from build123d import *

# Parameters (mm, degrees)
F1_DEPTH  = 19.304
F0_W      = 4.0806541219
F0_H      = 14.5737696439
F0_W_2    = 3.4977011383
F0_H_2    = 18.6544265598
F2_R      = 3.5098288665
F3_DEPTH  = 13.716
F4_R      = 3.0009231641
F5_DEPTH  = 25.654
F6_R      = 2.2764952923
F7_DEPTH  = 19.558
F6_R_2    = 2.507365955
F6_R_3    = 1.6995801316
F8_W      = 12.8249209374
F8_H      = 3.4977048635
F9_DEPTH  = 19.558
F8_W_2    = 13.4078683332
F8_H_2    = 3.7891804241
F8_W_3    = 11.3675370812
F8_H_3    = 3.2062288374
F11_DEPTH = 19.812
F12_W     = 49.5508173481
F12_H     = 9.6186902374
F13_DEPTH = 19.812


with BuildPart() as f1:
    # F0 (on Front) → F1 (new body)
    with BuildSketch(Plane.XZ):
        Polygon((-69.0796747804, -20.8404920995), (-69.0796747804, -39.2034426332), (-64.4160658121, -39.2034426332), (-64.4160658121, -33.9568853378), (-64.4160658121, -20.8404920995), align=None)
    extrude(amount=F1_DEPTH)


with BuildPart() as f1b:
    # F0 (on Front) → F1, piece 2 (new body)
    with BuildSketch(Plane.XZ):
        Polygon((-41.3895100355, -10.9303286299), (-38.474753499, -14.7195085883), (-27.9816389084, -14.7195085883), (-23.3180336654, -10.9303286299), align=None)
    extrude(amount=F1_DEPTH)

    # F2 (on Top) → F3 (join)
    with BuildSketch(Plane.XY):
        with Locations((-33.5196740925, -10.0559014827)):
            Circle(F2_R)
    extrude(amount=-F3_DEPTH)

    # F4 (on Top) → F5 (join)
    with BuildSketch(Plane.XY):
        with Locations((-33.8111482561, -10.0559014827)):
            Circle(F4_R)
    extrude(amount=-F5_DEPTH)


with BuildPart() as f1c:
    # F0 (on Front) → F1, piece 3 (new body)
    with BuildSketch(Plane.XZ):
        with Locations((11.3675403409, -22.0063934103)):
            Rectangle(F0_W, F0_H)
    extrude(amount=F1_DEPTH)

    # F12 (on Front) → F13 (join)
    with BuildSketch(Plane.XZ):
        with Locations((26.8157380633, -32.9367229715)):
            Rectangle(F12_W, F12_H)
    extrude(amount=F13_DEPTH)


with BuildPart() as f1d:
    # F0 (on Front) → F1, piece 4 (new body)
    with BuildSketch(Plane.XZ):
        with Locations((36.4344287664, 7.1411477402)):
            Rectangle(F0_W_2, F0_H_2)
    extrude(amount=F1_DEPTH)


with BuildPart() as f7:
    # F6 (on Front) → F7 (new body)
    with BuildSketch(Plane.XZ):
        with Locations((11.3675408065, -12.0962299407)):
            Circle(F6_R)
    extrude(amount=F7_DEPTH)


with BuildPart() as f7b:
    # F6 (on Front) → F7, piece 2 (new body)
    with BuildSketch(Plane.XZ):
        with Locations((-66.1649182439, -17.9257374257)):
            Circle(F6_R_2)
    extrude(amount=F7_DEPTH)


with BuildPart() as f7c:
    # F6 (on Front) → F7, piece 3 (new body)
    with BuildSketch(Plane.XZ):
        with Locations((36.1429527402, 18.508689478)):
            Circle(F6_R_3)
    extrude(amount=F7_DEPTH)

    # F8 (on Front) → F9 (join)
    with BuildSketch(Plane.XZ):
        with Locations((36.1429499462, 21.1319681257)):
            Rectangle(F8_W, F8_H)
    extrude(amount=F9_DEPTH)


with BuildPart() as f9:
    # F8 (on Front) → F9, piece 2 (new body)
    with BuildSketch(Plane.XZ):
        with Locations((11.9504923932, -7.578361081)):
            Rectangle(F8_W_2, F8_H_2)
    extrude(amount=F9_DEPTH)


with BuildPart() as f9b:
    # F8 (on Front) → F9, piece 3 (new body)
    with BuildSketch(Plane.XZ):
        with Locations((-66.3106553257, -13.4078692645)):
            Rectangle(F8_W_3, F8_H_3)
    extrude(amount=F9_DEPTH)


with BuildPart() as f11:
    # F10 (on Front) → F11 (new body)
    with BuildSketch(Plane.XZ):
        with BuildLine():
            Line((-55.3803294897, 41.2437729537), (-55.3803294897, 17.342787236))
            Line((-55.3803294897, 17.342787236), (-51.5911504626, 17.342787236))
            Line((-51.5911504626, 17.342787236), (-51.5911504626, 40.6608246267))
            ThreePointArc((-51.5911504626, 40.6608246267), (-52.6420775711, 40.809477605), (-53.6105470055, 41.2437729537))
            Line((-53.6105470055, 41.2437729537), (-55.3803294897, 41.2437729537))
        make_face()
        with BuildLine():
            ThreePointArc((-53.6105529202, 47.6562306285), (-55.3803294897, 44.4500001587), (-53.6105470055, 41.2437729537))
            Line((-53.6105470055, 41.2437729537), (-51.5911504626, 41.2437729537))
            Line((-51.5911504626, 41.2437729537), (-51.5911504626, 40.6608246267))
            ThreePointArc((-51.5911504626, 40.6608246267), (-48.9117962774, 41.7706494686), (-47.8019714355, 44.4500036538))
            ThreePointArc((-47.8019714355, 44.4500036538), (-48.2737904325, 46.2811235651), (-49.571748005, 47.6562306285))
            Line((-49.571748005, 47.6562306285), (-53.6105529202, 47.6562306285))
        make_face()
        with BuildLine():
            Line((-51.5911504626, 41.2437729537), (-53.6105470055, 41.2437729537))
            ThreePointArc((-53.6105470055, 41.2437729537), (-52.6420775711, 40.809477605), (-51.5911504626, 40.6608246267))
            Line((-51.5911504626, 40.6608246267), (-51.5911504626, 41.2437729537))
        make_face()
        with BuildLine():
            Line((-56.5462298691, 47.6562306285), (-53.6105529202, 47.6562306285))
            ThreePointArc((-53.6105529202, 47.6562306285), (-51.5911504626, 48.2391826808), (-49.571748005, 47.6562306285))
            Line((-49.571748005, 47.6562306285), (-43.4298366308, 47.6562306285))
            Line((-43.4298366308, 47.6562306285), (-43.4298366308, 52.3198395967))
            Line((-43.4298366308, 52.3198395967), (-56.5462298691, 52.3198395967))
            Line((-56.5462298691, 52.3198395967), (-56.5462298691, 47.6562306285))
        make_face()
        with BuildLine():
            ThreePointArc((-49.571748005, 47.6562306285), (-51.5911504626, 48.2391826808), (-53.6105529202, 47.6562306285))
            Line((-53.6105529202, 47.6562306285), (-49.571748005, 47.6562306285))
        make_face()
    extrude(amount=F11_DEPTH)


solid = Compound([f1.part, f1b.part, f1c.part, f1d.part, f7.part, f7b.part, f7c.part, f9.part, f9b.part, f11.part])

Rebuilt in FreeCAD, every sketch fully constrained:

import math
import FreeCAD as App
import Part
import Sketcher
from FreeCAD import Vector
Q = App.Units.Quantity


def add_polygon(sketch, points):
    """Adds a closed chain of lines whose ends are joined by coincident constraints."""
    first, n = sketch.GeometryCount, len(points)
    for a, b in zip(points, points[1:] + points[:1]):
        sketch.addGeometry(Part.LineSegment(App.Vector(*a, 0), App.Vector(*b, 0)), False)
    for i in range(n):
        sketch.addConstraint(Sketcher.Constraint("Coincident", first + i, 2, first + (i + 1) % n, 1))

doc = App.newDocument("Part")
body = doc.addObject("PartDesign::Body", "Body")

# Sketch on XZ plane
sketch1 = doc.addObject("Sketcher::SketchObject", "Sketch")
body.addObject(sketch1)
sketch1.AttachmentSupport = (doc.XZ_Plane, [""])
sketch1.MapMode = "FlatFace"
add_polygon(sketch1, [(-69.1, -20.8), (-69.1, -39.2), (-64.4, -39.2), (-64.4, -20.8)])  # lines 0-3
sketch1.addConstraint(Sketcher.Constraint("Vertical", 0))
sketch1.addConstraint(Sketcher.Constraint("Horizontal", 1))
sketch1.addConstraint(Sketcher.Constraint("Vertical", 2))
sketch1.addConstraint(Sketcher.Constraint("Horizontal", 3))
sketch1.addConstraint(Sketcher.Constraint("DistanceX", 1, 1, 1, 2, 4.663609))
sketch1.addConstraint(Sketcher.Constraint("DistanceY", 0, 2, 0, 1, 18.362951))
sketch1.addConstraint(Sketcher.Constraint("DistanceX", 0, 2, -1, 1, 69.079675))
sketch1.addConstraint(Sketcher.Constraint("DistanceY", 0, 2, -1, 1, 39.203443))
pad1 = doc.addObject("PartDesign::Pad", "Pad")
body.addObject(pad1)
pad1.Profile = sketch1
pad1.Length = Q("0.76 in")
body2 = doc.addObject("PartDesign::Body", "Body001")

# Sketch on XZ plane
sketch2 = doc.addObject("Sketcher::SketchObject", "Sketch001")
body2.addObject(sketch2)
sketch2.AttachmentSupport = (doc.getObject("XZ_Plane001"), [""])
sketch2.MapMode = "FlatFace"
add_polygon(sketch2, [(-41.4, -10.9), (-38.5, -14.7), (-28, -14.7), (-23.3, -10.9)])  # lines 0-3
sketch2.addConstraint(Sketcher.Constraint("Horizontal", 1))
sketch2.addConstraint(Sketcher.Constraint("Horizontal", 3))
sketch2.addConstraint(Sketcher.Constraint("Distance", 2, 6.008918))
sketch2.addConstraint(Sketcher.Constraint("DistanceX", 1, 1, 1, 2, 10.493115))
sketch2.addConstraint(Sketcher.Constraint("DistanceX", 3, 2, 3, 1, 18.071476))
sketch2.addConstraint(Sketcher.Constraint("DistanceY", 0, 2, -1, 1, 14.719509))
sketch2.addConstraint(Sketcher.Constraint("DistanceX", 1, 2, -1, 1, 27.981639))
sketch2.addConstraint(Sketcher.Constraint("DistanceY", 2, 2, -1, 1, 10.930329))
pad2 = doc.addObject("PartDesign::Pad", "Pad001")
body2.addObject(pad2)
pad2.Profile = sketch2
pad2.Length = Q("0.76 in")

# Sketch on XY plane
sketch3 = doc.addObject("Sketcher::SketchObject", "Sketch002")
body2.addObject(sketch3)
sketch3.AttachmentSupport = (doc.getObject("XY_Plane001"), [""])
sketch3.MapMode = "FlatFace"
sketch3.addGeometry(Part.Circle(Vector(-33.5, -10.1, 0), Vector(0, 0, 1), 3.5), False)
sketch3.addConstraint(Sketcher.Constraint("Diameter", 0, 7.019658))
sketch3.addConstraint(Sketcher.Constraint("DistanceY", 0, 3, -1, 1, 10.055901))
sketch3.addConstraint(Sketcher.Constraint("DistanceX", 0, 3, -1, 1, 33.519674))
pad3 = doc.addObject("PartDesign::Pad", "Pad002")
body2.addObject(pad3)
pad3.Profile = sketch3
pad3.Length = Q("0.54 in")
pad3.Reversed = True

# Sketch on XY plane
sketch4 = doc.addObject("Sketcher::SketchObject", "Sketch003")
body2.addObject(sketch4)
sketch4.AttachmentSupport = (doc.getObject("XY_Plane001"), [""])
sketch4.MapMode = "FlatFace"
sketch4.addGeometry(Part.Circle(Vector(-33.8, -10.1, 0), Vector(0, 0, 1), 3), False)
sketch4.addConstraint(Sketcher.Constraint("Diameter", 0, 6.001846))
sketch4.addConstraint(Sketcher.Constraint("DistanceY", 0, 3, -1, 1, 10.055901))
sketch4.addConstraint(Sketcher.Constraint("DistanceX", 0, 3, -1, 1, 33.811148))
pad4 = doc.addObject("PartDesign::Pad", "Pad003")
body2.addObject(pad4)
pad4.Profile = sketch4
pad4.Length = Q("1.01 in")
pad4.Reversed = True
body3 = doc.addObject("PartDesign::Body", "Body002")

# Sketch on XZ plane
sketch5 = doc.addObject("Sketcher::SketchObject", "Sketch004")
body3.addObject(sketch5)
sketch5.AttachmentSupport = (doc.getObject("XZ_Plane002"), [""])
sketch5.MapMode = "FlatFace"
add_polygon(sketch5, [(9.3, -14.7), (9.3, -29.3), (13.4, -29.3), (13.4, -14.7)])  # lines 0-3
sketch5.addConstraint(Sketcher.Constraint("Vertical", 0))
sketch5.addConstraint(Sketcher.Constraint("Horizontal", 1))
sketch5.addConstraint(Sketcher.Constraint("Vertical", 2))
sketch5.addConstraint(Sketcher.Constraint("Horizontal", 3))
sketch5.addConstraint(Sketcher.Constraint("DistanceY", 0, 2, 0, 1, 14.57377))
sketch5.addConstraint(Sketcher.Constraint("DistanceX", 1, 1, 1, 2, 4.080654))
sketch5.addConstraint(Sketcher.Constraint("DistanceY", 0, 2, -1, 1, 29.293278))
sketch5.addConstraint(Sketcher.Constraint("DistanceX", -1, 1, 0, 2, 9.327213))
pad5 = doc.addObject("PartDesign::Pad", "Pad004")
body3.addObject(pad5)
pad5.Profile = sketch5
pad5.Length = Q("0.76 in")

# Sketch on XZ plane
sketch6 = doc.addObject("Sketcher::SketchObject", "Sketch005")
body3.addObject(sketch6)
sketch6.AttachmentSupport = (doc.getObject("XZ_Plane002"), [""])
sketch6.MapMode = "FlatFace"
add_polygon(sketch6, [(2, -28), (2, -38), (52, -38), (52, -28)])  # lines 0-3
sketch6.addConstraint(Sketcher.Constraint("Vertical", 0))
sketch6.addConstraint(Sketcher.Constraint("Horizontal", 1))
sketch6.addConstraint(Sketcher.Constraint("Vertical", 2))
sketch6.addConstraint(Sketcher.Constraint("Horizontal", 3))
sketch6.addConstraint(Sketcher.Constraint("DistanceY", 0, 2, 0, 1, 9.61869))
sketch6.addConstraint(Sketcher.Constraint("DistanceX", 1, 1, 1, 2, 49.550817))
sketch6.addConstraint(Sketcher.Constraint("DistanceX", -1, 1, 0, 2, 2.040329))
sketch6.addConstraint(Sketcher.Constraint("DistanceY", 0, 2, -1, 1, 37.746068))
pad6 = doc.addObject("PartDesign::Pad", "Pad005")
body3.addObject(pad6)
pad6.Profile = sketch6
pad6.Length = Q("0.78 in")
body4 = doc.addObject("PartDesign::Body", "Body003")

# Sketch on XZ plane
sketch7 = doc.addObject("Sketcher::SketchObject", "Sketch006")
body4.addObject(sketch7)
sketch7.AttachmentSupport = (doc.getObject("XZ_Plane003"), [""])
sketch7.MapMode = "FlatFace"
add_polygon(sketch7, [(34.7, 16.5), (34.7, -2.2), (38.2, -2.2), (38.2, 16.5)])  # lines 0-3
sketch7.addConstraint(Sketcher.Constraint("Vertical", 0))
sketch7.addConstraint(Sketcher.Constraint("Horizontal", 1))
sketch7.addConstraint(Sketcher.Constraint("Vertical", 2))
sketch7.addConstraint(Sketcher.Constraint("Horizontal", 3))
sketch7.addConstraint(Sketcher.Constraint("DistanceX", 1, 1, 1, 2, 3.497701))
sketch7.addConstraint(Sketcher.Constraint("DistanceY", 0, 2, 0, 1, 18.654427))
sketch7.addConstraint(Sketcher.Constraint("DistanceX", -1, 1, 0, 2, 34.685578))
sketch7.addConstraint(Sketcher.Constraint("DistanceY", -1, 1, 2, 2, 16.468361))
pad7 = doc.addObject("PartDesign::Pad", "Pad006")
body4.addObject(pad7)
pad7.Profile = sketch7
pad7.Length = Q("0.76 in")
body5 = doc.addObject("PartDesign::Body", "Body004")

# Sketch on XZ plane
sketch8 = doc.addObject("Sketcher::SketchObject", "Sketch007")
body5.addObject(sketch8)
sketch8.AttachmentSupport = (doc.getObject("XZ_Plane004"), [""])
sketch8.MapMode = "FlatFace"
sketch8.addGeometry(Part.Circle(Vector(11.4, -12.1, 0), Vector(0, 0, 1), 2.3), False)
sketch8.addConstraint(Sketcher.Constraint("Diameter", 0, 4.552991))
sketch8.addConstraint(Sketcher.Constraint("DistanceX", -1, 1, 0, 3, 11.367541))
sketch8.addConstraint(Sketcher.Constraint("DistanceY", 0, 3, -1, 1, 12.09623))
pad8 = doc.addObject("PartDesign::Pad", "Pad007")
body5.addObject(pad8)
pad8.Profile = sketch8
pad8.Length = Q("0.77 in")
body6 = doc.addObject("PartDesign::Body", "Body005")

# Sketch on XZ plane
sketch9 = doc.addObject("Sketcher::SketchObject", "Sketch008")
body6.addObject(sketch9)
sketch9.AttachmentSupport = (doc.getObject("XZ_Plane005"), [""])
sketch9.MapMode = "FlatFace"
sketch9.addGeometry(Part.Circle(Vector(-66.2, -17.9, 0), Vector(0, 0, 1), 2.5), False)
sketch9.addConstraint(Sketcher.Constraint("Diameter", 0, 5.014732))
sketch9.addConstraint(Sketcher.Constraint("DistanceX", 0, 3, -1, 1, 66.164918))
sketch9.addConstraint(Sketcher.Constraint("DistanceY", 0, 3, -1, 1, 17.925737))
pad9 = doc.addObject("PartDesign::Pad", "Pad008")
body6.addObject(pad9)
pad9.Profile = sketch9
pad9.Length = Q("0.77 in")
body7 = doc.addObject("PartDesign::Body", "Body006")

# Sketch on XZ plane
sketch10 = doc.addObject("Sketcher::SketchObject", "Sketch009")
body7.addObject(sketch10)
sketch10.AttachmentSupport = (doc.getObject("XZ_Plane006"), [""])
sketch10.MapMode = "FlatFace"
sketch10.addGeometry(Part.Circle(Vector(36.1, 18.5, 0), Vector(0, 0, 1), 1.7), False)
sketch10.addConstraint(Sketcher.Constraint("Diameter", 0, 3.39916))
sketch10.addConstraint(Sketcher.Constraint("DistanceY", -1, 1, 0, 3, 18.508689))
sketch10.addConstraint(Sketcher.Constraint("DistanceX", -1, 1, 0, 3, 36.142953))
pad10 = doc.addObject("PartDesign::Pad", "Pad009")
body7.addObject(pad10)
pad10.Profile = sketch10
pad10.Length = Q("0.77 in")

# Sketch on XZ plane
sketch11 = doc.addObject("Sketcher::SketchObject", "Sketch010")
body7.addObject(sketch11)
sketch11.AttachmentSupport = (doc.getObject("XZ_Plane006"), [""])
sketch11.MapMode = "FlatFace"
add_polygon(sketch11, [(29.7, 22.9), (29.7, 19.4), (42.6, 19.4), (42.6, 22.9)])  # lines 0-3
sketch11.addConstraint(Sketcher.Constraint("Vertical", 0))
sketch11.addConstraint(Sketcher.Constraint("Horizontal", 1))
sketch11.addConstraint(Sketcher.Constraint("Vertical", 2))
sketch11.addConstraint(Sketcher.Constraint("Horizontal", 3))
sketch11.addConstraint(Sketcher.Constraint("DistanceX", 1, 1, 1, 2, 12.824921))
sketch11.addConstraint(Sketcher.Constraint("DistanceY", 0, 2, 0, 1, 3.497705))
sketch11.addConstraint(Sketcher.Constraint("DistanceX", -1, 1, 0, 2, 29.730489))
sketch11.addConstraint(Sketcher.Constraint("DistanceY", -1, 1, 2, 2, 22.880821))
pad11 = doc.addObject("PartDesign::Pad", "Pad010")
body7.addObject(pad11)
pad11.Profile = sketch11
pad11.Length = Q("0.77 in")
body8 = doc.addObject("PartDesign::Body", "Body007")

# Sketch on XZ plane
sketch12 = doc.addObject("Sketcher::SketchObject", "Sketch011")
body8.addObject(sketch12)
sketch12.AttachmentSupport = (doc.getObject("XZ_Plane007"), [""])
sketch12.MapMode = "FlatFace"
add_polygon(sketch12, [(5.2, -5.7), (5.2, -9.5), (18.7, -9.5), (18.7, -5.7)])  # lines 0-3
sketch12.addConstraint(Sketcher.Constraint("Vertical", 0))
sketch12.addConstraint(Sketcher.Constraint("Horizontal", 1))
sketch12.addConstraint(Sketcher.Constraint("Vertical", 2))
sketch12.addConstraint(Sketcher.Constraint("Horizontal", 3))
sketch12.addConstraint(Sketcher.Constraint("DistanceX", 1, 1, 1, 2, 13.407868))
sketch12.addConstraint(Sketcher.Constraint("DistanceY", 0, 2, 0, 1, 3.78918))
sketch12.addConstraint(Sketcher.Constraint("DistanceX", -1, 1, 0, 2, 5.246558))
sketch12.addConstraint(Sketcher.Constraint("DistanceY", 0, 2, -1, 1, 9.472951))
pad12 = doc.addObject("PartDesign::Pad", "Pad011")
body8.addObject(pad12)
pad12.Profile = sketch12
pad12.Length = Q("0.77 in")
body9 = doc.addObject("PartDesign::Body", "Body008")

# Sketch on XZ plane
sketch13 = doc.addObject("Sketcher::SketchObject", "Sketch012")
body9.addObject(sketch13)
sketch13.AttachmentSupport = (doc.getObject("XZ_Plane008"), [""])
sketch13.MapMode = "FlatFace"
add_polygon(sketch13, [(-72, -11.8), (-72, -15), (-60.6, -15), (-60.6, -11.8)])  # lines 0-3
sketch13.addConstraint(Sketcher.Constraint("Vertical", 0))
sketch13.addConstraint(Sketcher.Constraint("Horizontal", 1))
sketch13.addConstraint(Sketcher.Constraint("Vertical", 2))
sketch13.addConstraint(Sketcher.Constraint("Horizontal", 3))
sketch13.addConstraint(Sketcher.Constraint("DistanceY", 0, 2, 0, 1, 3.206229))
sketch13.addConstraint(Sketcher.Constraint("DistanceX", 1, 1, 1, 2, 11.367537))
sketch13.addConstraint(Sketcher.Constraint("DistanceX", 0, 2, -1, 1, 71.994424))
sketch13.addConstraint(Sketcher.Constraint("DistanceY", 0, 2, -1, 1, 15.010984))
pad13 = doc.addObject("PartDesign::Pad", "Pad012")
body9.addObject(pad13)
pad13.Profile = sketch13
pad13.Length = Q("0.77 in")
body10 = doc.addObject("PartDesign::Body", "Body009")

# Sketch on XZ plane
sketch14 = doc.addObject("Sketcher::SketchObject", "Sketch013")
body10.addObject(sketch14)
sketch14.AttachmentSupport = (doc.getObject("XZ_Plane009"), [""])
sketch14.MapMode = "FlatFace"
sketch14.addGeometry(Part.LineSegment(Vector(-55.4, 41.2, 0), Vector(-55.4, 17.3, 0)), False)
sketch14.addGeometry(Part.LineSegment(Vector(-55.4, 17.3, 0), Vector(-51.6, 17.3, 0)), False)
sketch14.addGeometry(Part.LineSegment(Vector(-51.6, 17.3, 0), Vector(-51.6, 40.7, 0)), False)
sketch14.addGeometry(Part.ArcOfCircle(Part.Circle(Vector(-51.6, 44.5, 0), Vector(0, 0, 1), 3.8), math.radians(-90), math.radians(0)), False)
sketch14.addGeometry(Part.ArcOfCircle(Part.Circle(Vector(-51.6, 44.5, 0), Vector(0, 0, 1), 3.8), math.radians(0), math.radians(58)), False)
sketch14.addGeometry(Part.LineSegment(Vector(-49.6, 47.7, 0), Vector(-43.4, 47.7, 0)), False)
sketch14.addGeometry(Part.LineSegment(Vector(-43.4, 47.7, 0), Vector(-43.4, 52.3, 0)), False)
sketch14.addGeometry(Part.LineSegment(Vector(-43.4, 52.3, 0), Vector(-56.5, 52.3, 0)), False)
sketch14.addGeometry(Part.LineSegment(Vector(-56.5, 52.3, 0), Vector(-56.5, 47.7, 0)), False)
sketch14.addGeometry(Part.LineSegment(Vector(-56.5, 47.7, 0), Vector(-53.6, 47.7, 0)), False)
sketch14.addGeometry(Part.ArcOfCircle(Part.Circle(Vector(-51.6, 44.5, 0), Vector(0, 0, 1), 3.8), math.radians(122), math.radians(238)), False)
sketch14.addGeometry(Part.LineSegment(Vector(-53.6, 41.2, 0), Vector(-55.4, 41.2, 0)), False)
sketch14.addConstraint(Sketcher.Constraint("Coincident", 0, 2, 1, 1))
sketch14.addConstraint(Sketcher.Constraint("Coincident", 1, 2, 2, 1))
sketch14.addConstraint(Sketcher.Constraint("Coincident", 2, 2, 3, 1))
sketch14.addConstraint(Sketcher.Constraint("Tangent", 3, 2, 4, 1))
sketch14.addConstraint(Sketcher.Constraint("Coincident", 4, 2, 5, 1))
sketch14.addConstraint(Sketcher.Constraint("Coincident", 5, 2, 6, 1))
sketch14.addConstraint(Sketcher.Constraint("Coincident", 6, 2, 7, 1))
sketch14.addConstraint(Sketcher.Constraint("Coincident", 7, 2, 8, 1))
sketch14.addConstraint(Sketcher.Constraint("Coincident", 8, 2, 9, 1))
sketch14.addConstraint(Sketcher.Constraint("Coincident", 9, 2, 10, 1))
sketch14.addConstraint(Sketcher.Constraint("Coincident", 10, 2, 11, 1))
sketch14.addConstraint(Sketcher.Constraint("Coincident", 11, 2, 0, 1))
sketch14.addConstraint(Sketcher.Constraint("Vertical", 0))
sketch14.addConstraint(Sketcher.Constraint("Horizontal", 1))
sketch14.addConstraint(Sketcher.Constraint("Vertical", 2))
sketch14.addConstraint(Sketcher.Constraint("Horizontal", 5))
sketch14.addConstraint(Sketcher.Constraint("Vertical", 6))
sketch14.addConstraint(Sketcher.Constraint("Horizontal", 7))
sketch14.addConstraint(Sketcher.Constraint("Vertical", 8))
sketch14.addConstraint(Sketcher.Constraint("Horizontal", 9))
sketch14.addConstraint(Sketcher.Constraint("Horizontal", 11))
sketch14.addConstraint(Sketcher.Constraint("Coincident", 10, 3, 3, 3))
sketch14.addConstraint(Sketcher.Constraint("Equal", 3, 4))
sketch14.addConstraint(Sketcher.Constraint("Equal", 4, 10))
sketch14.addConstraint(Sketcher.Constraint("Horizontal", 10, 3, 3, 2))
sketch14.addConstraint(Sketcher.Constraint("Horizontal", 5, 2, 8, 2))
sketch14.addConstraint(Sketcher.Constraint("Vertical", 10, 3, 1, 2))
sketch14.addConstraint(Sketcher.Constraint("DistanceY", -1, 1, 3, 3, Q("1.7500001 in")))
sketch14.addConstraint(Sketcher.Constraint("Radius", 3, 3.789179))
sketch14.addConstraint(Sketcher.Constraint("DistanceX", 1, 1, 1, 2, 3.789179))
sketch14.addConstraint(Sketcher.Constraint("DistanceX", 5, 1, 5, 2, 6.141911))
sketch14.addConstraint(Sketcher.Constraint("DistanceY", 6, 1, 6, 2, 4.663609))
sketch14.addConstraint(Sketcher.Constraint("DistanceX", 7, 2, 7, 1, 13.116393))
sketch14.addConstraint(Sketcher.Constraint("DistanceX", 9, 1, 9, 2, 2.935677))
sketch14.addConstraint(Sketcher.Constraint("DistanceX", 11, 2, 11, 1, 1.769782))
sketch14.addConstraint(Sketcher.Constraint("DistanceY", 0, 2, 0, 1, 23.900986))
sketch14.addConstraint(Sketcher.Constraint("DistanceX", 3, 3, -1, 1, 51.59115))
pad14 = doc.addObject("PartDesign::Pad", "Pad013")
body10.addObject(pad14)
pad14.Profile = sketch14
pad14.Length = Q("0.78 in")

doc.recompute()
